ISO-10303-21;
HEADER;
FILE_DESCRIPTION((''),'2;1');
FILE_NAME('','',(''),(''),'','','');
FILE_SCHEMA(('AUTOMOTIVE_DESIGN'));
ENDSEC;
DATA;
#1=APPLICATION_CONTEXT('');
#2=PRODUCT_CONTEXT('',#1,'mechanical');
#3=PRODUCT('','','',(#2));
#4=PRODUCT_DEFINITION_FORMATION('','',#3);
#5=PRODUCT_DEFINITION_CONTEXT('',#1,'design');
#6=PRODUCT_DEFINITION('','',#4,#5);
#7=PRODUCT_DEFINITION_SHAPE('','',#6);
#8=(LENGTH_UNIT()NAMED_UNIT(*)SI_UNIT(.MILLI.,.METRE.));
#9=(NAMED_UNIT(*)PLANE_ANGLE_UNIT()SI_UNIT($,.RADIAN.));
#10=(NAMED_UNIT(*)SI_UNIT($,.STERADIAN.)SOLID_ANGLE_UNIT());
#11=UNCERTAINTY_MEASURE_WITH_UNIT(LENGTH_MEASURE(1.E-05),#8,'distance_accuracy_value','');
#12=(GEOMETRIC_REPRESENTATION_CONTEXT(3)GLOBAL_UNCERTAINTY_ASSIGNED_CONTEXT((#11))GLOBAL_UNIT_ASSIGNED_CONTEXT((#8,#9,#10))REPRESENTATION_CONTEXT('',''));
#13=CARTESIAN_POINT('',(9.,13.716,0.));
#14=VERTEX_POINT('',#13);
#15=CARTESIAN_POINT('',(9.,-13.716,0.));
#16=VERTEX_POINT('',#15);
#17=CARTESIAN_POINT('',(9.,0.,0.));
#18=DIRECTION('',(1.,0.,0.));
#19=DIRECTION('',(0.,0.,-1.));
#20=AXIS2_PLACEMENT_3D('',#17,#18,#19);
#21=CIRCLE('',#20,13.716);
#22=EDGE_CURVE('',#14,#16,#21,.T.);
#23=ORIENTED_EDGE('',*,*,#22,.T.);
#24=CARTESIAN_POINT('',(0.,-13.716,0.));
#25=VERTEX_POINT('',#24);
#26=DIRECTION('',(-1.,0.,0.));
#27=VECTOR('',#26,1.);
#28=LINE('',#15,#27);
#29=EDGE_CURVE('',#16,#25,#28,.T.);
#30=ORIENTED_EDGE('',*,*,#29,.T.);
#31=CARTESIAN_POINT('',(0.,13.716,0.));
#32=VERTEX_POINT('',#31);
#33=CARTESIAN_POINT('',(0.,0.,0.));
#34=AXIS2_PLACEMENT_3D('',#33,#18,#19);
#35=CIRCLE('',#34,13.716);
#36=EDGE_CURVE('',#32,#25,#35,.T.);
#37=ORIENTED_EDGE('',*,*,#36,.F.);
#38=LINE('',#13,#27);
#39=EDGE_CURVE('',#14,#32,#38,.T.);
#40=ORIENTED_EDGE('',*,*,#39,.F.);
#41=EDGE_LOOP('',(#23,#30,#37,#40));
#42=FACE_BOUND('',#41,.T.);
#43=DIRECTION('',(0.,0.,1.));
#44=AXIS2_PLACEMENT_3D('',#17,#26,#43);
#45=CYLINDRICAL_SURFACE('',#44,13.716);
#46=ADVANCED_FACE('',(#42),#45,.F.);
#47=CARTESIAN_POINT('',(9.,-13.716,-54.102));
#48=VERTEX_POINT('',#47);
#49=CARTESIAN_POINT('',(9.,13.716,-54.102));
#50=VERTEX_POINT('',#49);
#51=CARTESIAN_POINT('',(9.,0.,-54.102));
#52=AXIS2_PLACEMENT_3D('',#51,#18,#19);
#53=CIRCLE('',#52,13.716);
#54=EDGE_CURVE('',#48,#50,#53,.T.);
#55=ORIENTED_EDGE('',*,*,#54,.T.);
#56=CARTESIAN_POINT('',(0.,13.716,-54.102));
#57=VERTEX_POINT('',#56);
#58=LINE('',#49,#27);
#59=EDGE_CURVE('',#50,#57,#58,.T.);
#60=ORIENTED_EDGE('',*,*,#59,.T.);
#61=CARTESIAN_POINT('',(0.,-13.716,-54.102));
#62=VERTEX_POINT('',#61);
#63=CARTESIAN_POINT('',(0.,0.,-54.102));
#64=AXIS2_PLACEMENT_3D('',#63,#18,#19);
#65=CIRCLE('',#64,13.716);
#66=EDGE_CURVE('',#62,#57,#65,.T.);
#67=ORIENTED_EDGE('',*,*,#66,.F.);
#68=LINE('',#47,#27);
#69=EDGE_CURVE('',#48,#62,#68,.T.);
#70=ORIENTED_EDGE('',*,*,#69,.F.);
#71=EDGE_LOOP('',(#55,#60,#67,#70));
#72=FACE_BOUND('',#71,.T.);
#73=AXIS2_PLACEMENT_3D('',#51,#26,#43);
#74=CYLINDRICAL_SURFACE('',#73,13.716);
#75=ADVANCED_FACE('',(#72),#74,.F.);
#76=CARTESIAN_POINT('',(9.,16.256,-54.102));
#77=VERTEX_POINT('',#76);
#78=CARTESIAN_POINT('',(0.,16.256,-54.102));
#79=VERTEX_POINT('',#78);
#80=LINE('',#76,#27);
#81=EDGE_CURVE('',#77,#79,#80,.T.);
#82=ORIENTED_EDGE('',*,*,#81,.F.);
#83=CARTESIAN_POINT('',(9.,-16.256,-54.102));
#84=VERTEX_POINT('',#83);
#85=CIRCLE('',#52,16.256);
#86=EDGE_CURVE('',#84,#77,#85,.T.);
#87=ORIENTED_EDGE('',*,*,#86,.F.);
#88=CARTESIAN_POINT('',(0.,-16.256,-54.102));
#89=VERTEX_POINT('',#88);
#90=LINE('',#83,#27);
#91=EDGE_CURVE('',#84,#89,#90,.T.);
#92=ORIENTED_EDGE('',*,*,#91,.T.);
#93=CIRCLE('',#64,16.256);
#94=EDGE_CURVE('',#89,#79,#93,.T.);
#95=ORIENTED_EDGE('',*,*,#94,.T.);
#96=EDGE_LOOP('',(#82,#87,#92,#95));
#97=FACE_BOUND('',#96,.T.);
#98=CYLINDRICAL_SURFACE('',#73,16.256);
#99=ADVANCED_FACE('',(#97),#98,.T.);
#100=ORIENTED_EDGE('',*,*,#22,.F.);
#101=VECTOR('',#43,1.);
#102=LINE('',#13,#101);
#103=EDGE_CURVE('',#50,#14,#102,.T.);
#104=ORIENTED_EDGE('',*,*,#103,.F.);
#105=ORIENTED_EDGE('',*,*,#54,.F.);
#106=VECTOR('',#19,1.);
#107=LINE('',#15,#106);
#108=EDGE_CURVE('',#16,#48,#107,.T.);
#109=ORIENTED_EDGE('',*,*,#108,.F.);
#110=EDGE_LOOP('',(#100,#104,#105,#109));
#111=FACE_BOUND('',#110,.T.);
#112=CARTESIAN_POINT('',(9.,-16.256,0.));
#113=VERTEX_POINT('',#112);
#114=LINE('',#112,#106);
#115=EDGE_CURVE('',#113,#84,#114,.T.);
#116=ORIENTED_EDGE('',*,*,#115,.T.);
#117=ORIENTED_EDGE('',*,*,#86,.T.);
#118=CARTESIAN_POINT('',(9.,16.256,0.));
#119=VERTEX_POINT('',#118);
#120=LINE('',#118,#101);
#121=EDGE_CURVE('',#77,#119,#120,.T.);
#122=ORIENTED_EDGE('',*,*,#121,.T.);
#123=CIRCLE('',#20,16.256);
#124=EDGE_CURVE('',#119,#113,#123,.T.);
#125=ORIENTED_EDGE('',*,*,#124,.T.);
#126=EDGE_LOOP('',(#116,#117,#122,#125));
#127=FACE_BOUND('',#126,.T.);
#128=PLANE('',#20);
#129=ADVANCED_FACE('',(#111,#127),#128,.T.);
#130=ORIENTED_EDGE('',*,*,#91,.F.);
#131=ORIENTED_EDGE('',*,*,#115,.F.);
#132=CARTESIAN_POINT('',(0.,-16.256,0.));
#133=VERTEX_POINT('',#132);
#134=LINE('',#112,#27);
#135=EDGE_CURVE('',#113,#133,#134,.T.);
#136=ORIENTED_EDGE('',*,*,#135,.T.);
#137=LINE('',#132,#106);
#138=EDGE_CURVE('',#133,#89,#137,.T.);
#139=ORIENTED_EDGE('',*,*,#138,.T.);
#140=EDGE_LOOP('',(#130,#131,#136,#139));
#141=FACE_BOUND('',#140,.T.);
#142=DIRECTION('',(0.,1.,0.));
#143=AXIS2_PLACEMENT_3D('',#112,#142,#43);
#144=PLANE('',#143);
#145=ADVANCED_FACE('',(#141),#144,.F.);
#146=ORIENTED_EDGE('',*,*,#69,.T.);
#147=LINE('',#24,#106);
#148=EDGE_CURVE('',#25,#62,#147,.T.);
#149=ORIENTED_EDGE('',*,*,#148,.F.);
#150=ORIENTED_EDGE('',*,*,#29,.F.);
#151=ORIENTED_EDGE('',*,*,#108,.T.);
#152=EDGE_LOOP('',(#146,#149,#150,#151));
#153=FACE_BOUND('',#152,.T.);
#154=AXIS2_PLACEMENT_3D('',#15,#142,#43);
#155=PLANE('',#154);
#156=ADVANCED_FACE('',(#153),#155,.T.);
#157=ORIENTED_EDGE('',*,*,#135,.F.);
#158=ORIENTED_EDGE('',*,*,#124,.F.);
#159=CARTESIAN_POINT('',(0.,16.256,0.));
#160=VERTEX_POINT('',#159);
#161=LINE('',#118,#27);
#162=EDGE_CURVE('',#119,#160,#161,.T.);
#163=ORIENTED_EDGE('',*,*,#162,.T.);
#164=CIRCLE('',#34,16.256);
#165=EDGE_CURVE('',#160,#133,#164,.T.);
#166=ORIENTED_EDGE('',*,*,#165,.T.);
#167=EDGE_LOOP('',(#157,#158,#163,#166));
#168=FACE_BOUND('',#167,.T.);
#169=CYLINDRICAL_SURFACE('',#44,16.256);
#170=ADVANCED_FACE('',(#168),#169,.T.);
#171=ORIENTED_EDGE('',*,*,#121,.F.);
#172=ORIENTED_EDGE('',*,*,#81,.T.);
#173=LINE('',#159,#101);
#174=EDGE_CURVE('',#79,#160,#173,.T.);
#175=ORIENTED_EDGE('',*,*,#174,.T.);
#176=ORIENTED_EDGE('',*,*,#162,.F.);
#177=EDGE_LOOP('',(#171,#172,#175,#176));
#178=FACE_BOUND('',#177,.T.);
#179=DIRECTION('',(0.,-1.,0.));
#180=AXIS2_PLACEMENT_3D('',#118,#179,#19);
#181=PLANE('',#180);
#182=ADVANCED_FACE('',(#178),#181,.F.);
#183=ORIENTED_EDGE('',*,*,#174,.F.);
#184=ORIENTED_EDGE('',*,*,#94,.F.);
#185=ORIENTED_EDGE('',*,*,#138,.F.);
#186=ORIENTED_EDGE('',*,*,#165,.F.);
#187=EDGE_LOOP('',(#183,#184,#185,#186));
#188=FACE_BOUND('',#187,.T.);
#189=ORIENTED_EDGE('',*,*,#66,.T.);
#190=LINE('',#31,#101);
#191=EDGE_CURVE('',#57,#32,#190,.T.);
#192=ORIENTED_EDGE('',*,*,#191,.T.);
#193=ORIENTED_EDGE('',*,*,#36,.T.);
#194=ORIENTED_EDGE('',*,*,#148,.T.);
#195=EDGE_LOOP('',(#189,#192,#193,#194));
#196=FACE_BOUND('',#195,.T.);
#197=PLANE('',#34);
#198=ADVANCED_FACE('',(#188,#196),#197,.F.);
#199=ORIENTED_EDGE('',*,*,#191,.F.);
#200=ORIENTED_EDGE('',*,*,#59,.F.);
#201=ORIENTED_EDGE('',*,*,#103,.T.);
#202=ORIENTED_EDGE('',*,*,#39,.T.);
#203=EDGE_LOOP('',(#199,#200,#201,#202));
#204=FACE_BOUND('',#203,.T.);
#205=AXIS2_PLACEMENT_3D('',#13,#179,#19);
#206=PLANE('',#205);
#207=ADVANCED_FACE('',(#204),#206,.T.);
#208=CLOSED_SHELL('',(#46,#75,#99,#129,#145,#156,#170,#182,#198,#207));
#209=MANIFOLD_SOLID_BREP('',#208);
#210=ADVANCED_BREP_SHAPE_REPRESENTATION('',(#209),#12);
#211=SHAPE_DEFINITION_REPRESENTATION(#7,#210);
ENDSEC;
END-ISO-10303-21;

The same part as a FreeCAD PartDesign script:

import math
import FreeCAD as App
import Part
import Sketcher
from FreeCAD import Vector
Q = App.Units.Quantity

doc = App.newDocument("Part")
body = doc.addObject("PartDesign::Body", "Body")

sketch1 = body.newObject("Sketcher::SketchObject", "Sketch")
sketch1.AttachmentSupport = (doc.getObject("YZ_Plane"), [""])
sketch1.MapMode = "FlatFace"
sketch1.addGeometry(Part.LineSegment(Vector(-16, 0, 0), Vector(-16, -54, 0)), False)
sketch1.addGeometry(Part.ArcOfCircle(Part.Circle(Vector(0, -54, 0), Vector(0, 0, 1), 16), math.radians(180), math.radians(360)), False)
sketch1.addGeometry(Part.LineSegment(Vector(16, -54, 0), Vector(16, 0, 0)), False)
sketch1.addGeometry(Part.ArcOfCircle(Part.Circle(Vector(0, 0, 0), Vector(0, 0, 1), 16), math.radians(0), math.radians(180)), False)
sketch1.addGeometry(Part.LineSegment(Vector(-14, -54, 0), Vector(-14, 0, 0)), False)
sketch1.addGeometry(Part.ArcOfCircle(Part.Circle(Vector(0, 0, 0), Vector(0, 0, 1), 14), math.radians(0), math.radians(180)), False)
sketch1.addGeometry(Part.LineSegment(Vector(14, 0, 0), Vector(14, -54, 0)), False)
sketch1.addGeometry(Part.ArcOfCircle(Part.Circle(Vector(0, -54, 0), Vector(0, 0, 1), 14), math.radians(180), math.radians(360)), False)
sketch1.addConstraint(Sketcher.Constraint("Tangent", 0, 2, 1, 1))
sketch1.addConstraint(Sketcher.Constraint("Tangent", 1, 2, 2, 1))
sketch1.addConstraint(Sketcher.Constraint("Tangent", 2, 2, 3, 1))
sketch1.addConstraint(Sketcher.Constraint("Tangent", 3, 2, 0, 1))
sketch1.addConstraint(Sketcher.Constraint("Tangent", 4, 2, 5, 2))
sketch1.addConstraint(Sketcher.Constraint("Tangent", 5, 1, 6, 1))
sketch1.addConstraint(Sketcher.Constraint("Tangent", 6, 2, 7, 2))
sketch1.addConstraint(Sketcher.Constraint("Tangent", 7, 1, 4, 1))
sketch1.addConstraint(Sketcher.Constraint("Vertical", 0))
sketch1.addConstraint(Sketcher.Constraint("Vertical", 2))
sketch1.addConstraint(Sketcher.Constraint("Vertical", 4))
sketch1.addConstraint(Sketcher.Constraint("Vertical", 6))
sketch1.addConstraint(Sketcher.Constraint("Coincident", 3, 3, -1, 1))
sketch1.addConstraint(Sketcher.Constraint("Coincident", 5, 3, -1, 1))
sketch1.addConstraint(Sketcher.Constraint("Horizontal", 7, 3, 0, 2))
sketch1.addConstraint(Sketcher.Constraint("Radius", 1, Q("0.64 in")))
sketch1.addConstraint(Sketcher.Constraint("Radius", 5, Q("0.54 in")))
sketch1.addConstraint(Sketcher.Constraint("DistanceY", 0, 2, 0, 1, Q("2.13 in")))
pad1 = body.newObject("PartDesign::Pad", "Pad")
pad1.Profile = sketch1
pad1.Length = 9

doc.recompute()
